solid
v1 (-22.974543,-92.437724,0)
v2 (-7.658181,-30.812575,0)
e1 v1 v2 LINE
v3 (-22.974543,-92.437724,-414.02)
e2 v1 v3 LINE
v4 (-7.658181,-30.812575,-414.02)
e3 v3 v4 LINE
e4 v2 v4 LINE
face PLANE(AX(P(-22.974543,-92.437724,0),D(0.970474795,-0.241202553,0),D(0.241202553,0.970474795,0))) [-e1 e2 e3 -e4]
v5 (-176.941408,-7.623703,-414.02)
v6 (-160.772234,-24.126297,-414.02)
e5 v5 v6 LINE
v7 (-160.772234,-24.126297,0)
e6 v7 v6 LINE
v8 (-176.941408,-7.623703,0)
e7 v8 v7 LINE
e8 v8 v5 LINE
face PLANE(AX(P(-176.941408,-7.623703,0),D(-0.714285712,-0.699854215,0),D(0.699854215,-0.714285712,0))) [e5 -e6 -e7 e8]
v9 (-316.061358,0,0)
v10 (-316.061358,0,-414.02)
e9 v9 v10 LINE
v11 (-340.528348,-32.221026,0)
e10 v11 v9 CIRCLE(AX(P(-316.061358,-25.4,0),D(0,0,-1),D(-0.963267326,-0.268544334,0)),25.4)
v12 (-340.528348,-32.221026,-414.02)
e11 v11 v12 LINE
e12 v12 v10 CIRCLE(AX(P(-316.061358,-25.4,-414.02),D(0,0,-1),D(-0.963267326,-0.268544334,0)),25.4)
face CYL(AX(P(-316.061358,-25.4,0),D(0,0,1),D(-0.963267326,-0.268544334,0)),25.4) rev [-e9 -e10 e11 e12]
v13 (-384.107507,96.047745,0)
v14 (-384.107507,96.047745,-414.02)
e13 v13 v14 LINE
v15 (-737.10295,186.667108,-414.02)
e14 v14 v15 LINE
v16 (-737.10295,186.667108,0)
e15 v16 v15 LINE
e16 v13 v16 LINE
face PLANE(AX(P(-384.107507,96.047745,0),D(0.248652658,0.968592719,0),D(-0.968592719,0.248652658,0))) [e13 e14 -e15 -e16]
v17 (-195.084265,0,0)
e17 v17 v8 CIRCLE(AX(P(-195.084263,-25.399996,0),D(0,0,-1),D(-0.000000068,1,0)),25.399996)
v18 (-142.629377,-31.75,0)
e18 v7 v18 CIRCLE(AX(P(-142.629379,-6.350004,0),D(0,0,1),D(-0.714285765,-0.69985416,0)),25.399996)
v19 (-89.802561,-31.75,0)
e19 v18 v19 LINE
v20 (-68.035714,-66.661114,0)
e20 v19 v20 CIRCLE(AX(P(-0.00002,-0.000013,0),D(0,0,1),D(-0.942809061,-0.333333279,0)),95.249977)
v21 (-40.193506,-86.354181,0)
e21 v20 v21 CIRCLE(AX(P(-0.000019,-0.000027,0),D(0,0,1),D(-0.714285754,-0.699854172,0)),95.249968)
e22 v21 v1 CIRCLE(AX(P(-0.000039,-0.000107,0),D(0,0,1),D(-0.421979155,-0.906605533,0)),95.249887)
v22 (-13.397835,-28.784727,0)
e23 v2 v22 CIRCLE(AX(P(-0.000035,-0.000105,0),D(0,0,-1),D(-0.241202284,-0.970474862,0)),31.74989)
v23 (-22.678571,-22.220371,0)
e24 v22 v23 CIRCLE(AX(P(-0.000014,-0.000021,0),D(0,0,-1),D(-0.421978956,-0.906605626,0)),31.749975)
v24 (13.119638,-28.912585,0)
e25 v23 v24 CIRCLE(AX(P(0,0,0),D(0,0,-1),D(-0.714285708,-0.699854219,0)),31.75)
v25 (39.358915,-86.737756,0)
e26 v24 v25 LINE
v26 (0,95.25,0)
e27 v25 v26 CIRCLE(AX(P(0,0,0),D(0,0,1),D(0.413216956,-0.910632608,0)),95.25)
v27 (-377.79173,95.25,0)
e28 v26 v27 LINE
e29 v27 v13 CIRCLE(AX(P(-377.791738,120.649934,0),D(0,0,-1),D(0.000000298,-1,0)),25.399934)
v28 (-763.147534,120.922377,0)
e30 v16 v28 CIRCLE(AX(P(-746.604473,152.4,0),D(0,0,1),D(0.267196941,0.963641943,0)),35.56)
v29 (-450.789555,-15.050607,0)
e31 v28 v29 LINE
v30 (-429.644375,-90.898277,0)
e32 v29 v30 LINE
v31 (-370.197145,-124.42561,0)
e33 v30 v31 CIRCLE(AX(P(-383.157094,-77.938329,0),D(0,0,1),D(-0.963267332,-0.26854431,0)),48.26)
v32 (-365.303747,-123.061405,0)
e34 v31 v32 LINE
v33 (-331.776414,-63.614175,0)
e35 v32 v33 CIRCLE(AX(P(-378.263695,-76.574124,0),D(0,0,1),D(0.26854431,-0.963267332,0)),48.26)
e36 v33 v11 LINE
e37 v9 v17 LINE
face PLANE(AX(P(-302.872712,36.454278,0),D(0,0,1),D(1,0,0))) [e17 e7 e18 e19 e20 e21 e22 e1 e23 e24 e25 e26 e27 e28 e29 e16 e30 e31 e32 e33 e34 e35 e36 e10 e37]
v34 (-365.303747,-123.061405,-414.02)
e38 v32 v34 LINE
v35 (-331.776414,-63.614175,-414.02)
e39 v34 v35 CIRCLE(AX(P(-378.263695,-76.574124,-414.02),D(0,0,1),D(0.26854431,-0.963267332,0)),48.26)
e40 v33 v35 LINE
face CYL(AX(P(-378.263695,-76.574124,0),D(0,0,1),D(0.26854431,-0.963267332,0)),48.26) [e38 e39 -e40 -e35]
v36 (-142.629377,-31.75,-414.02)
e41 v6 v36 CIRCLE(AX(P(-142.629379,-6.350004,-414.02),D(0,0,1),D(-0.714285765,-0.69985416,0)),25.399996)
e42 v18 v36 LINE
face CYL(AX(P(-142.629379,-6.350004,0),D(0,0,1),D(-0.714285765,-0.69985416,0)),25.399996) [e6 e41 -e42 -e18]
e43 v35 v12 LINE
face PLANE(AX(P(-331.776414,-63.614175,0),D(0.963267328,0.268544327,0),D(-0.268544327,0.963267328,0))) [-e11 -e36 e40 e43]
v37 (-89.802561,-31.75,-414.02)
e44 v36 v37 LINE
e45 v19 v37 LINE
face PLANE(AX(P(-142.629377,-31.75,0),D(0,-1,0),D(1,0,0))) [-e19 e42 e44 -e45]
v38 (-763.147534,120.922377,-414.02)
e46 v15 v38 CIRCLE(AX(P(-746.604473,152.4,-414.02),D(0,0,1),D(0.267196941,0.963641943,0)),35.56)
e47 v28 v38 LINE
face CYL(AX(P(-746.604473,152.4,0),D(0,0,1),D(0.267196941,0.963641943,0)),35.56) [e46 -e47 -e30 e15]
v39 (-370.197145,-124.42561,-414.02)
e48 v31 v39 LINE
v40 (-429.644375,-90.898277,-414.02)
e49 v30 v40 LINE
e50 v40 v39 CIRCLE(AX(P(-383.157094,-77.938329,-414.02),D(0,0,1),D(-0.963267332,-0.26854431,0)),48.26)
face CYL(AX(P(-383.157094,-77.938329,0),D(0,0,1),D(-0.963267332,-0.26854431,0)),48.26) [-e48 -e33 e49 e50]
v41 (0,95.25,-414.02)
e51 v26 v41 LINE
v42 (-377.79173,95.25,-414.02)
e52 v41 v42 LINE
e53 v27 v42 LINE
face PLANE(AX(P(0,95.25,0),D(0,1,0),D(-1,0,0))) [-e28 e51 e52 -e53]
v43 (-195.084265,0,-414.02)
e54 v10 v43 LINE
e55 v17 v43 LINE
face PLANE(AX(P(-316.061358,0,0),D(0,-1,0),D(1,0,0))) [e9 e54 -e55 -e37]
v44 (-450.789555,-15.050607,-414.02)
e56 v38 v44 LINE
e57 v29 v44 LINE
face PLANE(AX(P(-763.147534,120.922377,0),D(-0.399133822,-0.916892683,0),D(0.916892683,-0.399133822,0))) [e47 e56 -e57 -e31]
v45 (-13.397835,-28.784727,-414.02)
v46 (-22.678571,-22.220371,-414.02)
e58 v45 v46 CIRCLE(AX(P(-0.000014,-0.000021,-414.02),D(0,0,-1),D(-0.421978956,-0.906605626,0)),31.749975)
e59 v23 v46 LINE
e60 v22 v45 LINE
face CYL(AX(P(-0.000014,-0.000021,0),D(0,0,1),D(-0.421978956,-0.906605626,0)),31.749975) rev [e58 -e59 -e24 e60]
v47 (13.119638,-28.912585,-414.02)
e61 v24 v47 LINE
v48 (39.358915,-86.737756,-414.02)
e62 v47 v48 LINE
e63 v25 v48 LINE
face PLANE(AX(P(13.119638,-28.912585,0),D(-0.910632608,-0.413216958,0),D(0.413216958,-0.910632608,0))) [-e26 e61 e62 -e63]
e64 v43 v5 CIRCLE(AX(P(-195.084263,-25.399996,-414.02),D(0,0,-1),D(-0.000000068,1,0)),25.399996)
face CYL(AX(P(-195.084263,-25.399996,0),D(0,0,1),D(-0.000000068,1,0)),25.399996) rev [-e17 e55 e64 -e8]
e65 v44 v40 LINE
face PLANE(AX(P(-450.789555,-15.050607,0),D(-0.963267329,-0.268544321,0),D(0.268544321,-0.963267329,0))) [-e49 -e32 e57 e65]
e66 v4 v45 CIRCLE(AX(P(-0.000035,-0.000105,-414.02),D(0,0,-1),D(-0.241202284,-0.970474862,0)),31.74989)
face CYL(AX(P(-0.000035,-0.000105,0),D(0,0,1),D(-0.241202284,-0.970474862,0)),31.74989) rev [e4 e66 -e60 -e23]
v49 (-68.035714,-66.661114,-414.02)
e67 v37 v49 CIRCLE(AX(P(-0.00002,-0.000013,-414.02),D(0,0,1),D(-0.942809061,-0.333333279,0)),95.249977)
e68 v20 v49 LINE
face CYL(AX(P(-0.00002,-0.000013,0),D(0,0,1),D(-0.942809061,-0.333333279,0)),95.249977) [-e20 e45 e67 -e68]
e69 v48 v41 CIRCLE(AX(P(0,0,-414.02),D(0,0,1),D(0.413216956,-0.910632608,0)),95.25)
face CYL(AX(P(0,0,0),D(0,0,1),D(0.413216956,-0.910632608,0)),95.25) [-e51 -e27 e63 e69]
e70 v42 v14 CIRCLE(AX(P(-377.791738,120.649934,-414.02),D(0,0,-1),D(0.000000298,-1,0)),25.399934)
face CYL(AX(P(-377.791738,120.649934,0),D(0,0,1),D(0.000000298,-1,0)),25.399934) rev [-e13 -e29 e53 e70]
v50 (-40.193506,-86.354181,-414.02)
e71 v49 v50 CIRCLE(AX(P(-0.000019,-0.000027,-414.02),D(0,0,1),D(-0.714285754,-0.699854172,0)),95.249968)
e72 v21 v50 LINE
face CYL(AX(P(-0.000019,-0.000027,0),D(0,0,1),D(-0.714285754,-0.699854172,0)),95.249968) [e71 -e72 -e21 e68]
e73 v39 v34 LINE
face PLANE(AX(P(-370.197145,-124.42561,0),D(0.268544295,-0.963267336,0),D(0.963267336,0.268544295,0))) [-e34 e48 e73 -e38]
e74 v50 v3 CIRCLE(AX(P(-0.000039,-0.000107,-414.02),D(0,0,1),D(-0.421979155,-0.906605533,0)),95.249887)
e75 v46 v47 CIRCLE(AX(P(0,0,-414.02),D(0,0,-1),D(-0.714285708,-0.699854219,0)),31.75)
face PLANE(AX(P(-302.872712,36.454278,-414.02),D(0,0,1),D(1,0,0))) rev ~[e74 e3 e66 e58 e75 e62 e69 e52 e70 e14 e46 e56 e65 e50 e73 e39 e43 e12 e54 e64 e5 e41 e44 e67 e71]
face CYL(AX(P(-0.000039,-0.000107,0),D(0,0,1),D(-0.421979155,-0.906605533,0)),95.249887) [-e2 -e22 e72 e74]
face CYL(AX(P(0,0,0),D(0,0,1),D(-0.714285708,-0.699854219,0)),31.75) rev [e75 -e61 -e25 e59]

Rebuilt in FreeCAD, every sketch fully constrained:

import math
import FreeCAD as App
import Part
import Sketcher
from FreeCAD import Vector
Q = App.Units.Quantity

doc = App.newDocument("Part")
body = doc.addObject("PartDesign::Body", "Body")

# Sketch on XY plane
sketch1 = body.newObject("Sketcher::SketchObject", "Sketch")
sketch1.AttachmentSupport = (doc.getObject("XY_Plane"), [""])
sketch1.MapMode = "FlatFace"
sketch1.addGeometry([
    Part.ArcOfCircle(Part.Circle(Vector(0, 0, 0), Vector(0, 0, 1), 31.75), math.radians(-65.592921), math.radians(224.415309)),  # 0
    Part.LineSegment(Vector(13.119638, -28.912585, 0), Vector(39.358915, -86.737756, 0)),  # 1
    Part.ArcOfCircle(Part.Circle(Vector(0, 0, 0), Vector(0, 0, 1), 95.25), math.radians(-65.59292), math.radians(90)),  # 2
    Part.LineSegment(Vector(0, 95.25, 0), Vector(-377.79173, 95.25, 0)),  # 3
    Part.ArcOfCircle(Part.Circle(Vector(-377.791738, 120.649934, 0), Vector(0, 0, 1), 25.399934), math.radians(-104.397817), math.radians(-89.999983)),  # 4
    Part.LineSegment(Vector(-384.107507, 96.047745, 0), Vector(-737.10295, 186.667108, 0)),  # 5
    Part.ArcOfCircle(Part.Circle(Vector(-746.604473, 152.4, 0), Vector(0, 0, 1), 35.56), math.radians(74.502464), math.radians(242.275835)),  # 6
    Part.LineSegment(Vector(-763.147534, 120.922377, 0), Vector(-450.789555, -15.050607, 0)),  # 7
    Part.LineSegment(Vector(-450.789555, -15.050607, 0), Vector(-429.644375, -90.898277, 0)),  # 8
    Part.ArcOfCircle(Part.Circle(Vector(-383.157094, -77.938329, 0), Vector(0, 0, 1), 48.26), math.radians(-164.422337), math.radians(-74.422337)),  # 9
    Part.LineSegment(Vector(-370.197145, -124.42561, 0), Vector(-365.303747, -123.061405, 0)),  # 10
    Part.ArcOfCircle(Part.Circle(Vector(-378.263695, -76.574124, 0), Vector(0, 0, 1), 48.26), math.radians(-74.422337), math.radians(15.577663)),  # 11
    Part.LineSegment(Vector(-331.776414, -63.614175, 0), Vector(-340.528348, -32.221026, 0)),  # 12
    Part.ArcOfCircle(Part.Circle(Vector(-316.061358, -25.4, 0), Vector(0, 0, 1), 25.4), math.radians(90), math.radians(195.577665)),  # 13
    Part.LineSegment(Vector(-316.061358, 0, 0), Vector(-195.084265, 0, 0)),  # 14
    Part.ArcOfCircle(Part.Circle(Vector(-195.084263, -25.399996, 0), Vector(0, 0, 1), 25.399996), math.radians(44.415304), math.radians(90.000004)),  # 15
    Part.LineSegment(Vector(-176.941408, -7.623703, 0), Vector(-160.772234, -24.126297, 0)),  # 16
    Part.ArcOfCircle(Part.Circle(Vector(-142.629379, -6.350004, 0), Vector(0, 0, 1), 25.399996), math.radians(-135.584696), math.radians(-89.999996)),  # 17
    Part.LineSegment(Vector(-142.629377, -31.75, 0), Vector(-89.802561, -31.75, 0)),  # 18
    Part.ArcOfCircle(Part.Circle(Vector(-0.00002, -0.000013, 0), Vector(0, 0, 1), 95.249977), math.radians(-160.528783), math.radians(-135.584688)),  # 19
    Part.ArcOfCircle(Part.Circle(Vector(-0.000019, -0.000027, 0), Vector(0, 0, 1), 95.249968), math.radians(-135.584695), math.radians(-114.959594)),  # 20
    Part.ArcOfCircle(Part.Circle(Vector(-0.000039, -0.000107, 0), Vector(0, 0, 1), 95.249887), math.radians(-114.959603), math.radians(-103.957519)),  # 21
    Part.LineSegment(Vector(-22.974543, -92.437724, 0), Vector(-7.658181, -30.812575, 0)),  # 22
    Part.ArcOfCircle(Part.Circle(Vector(-0.000035, -0.000105, 0), Vector(0, 0, 1), 31.74989), math.radians(-114.959619), math.radians(-103.957511)),  # 23
    Part.ArcOfCircle(Part.Circle(Vector(-0.000014, -0.000021, 0), Vector(0, 0, 1), 31.749975), math.radians(-135.584701), math.radians(-114.95959)),  # 24
], False)
sketch1.addConstraint([
    Sketcher.Constraint("Coincident", 0, 1, 1, 1),
    Sketcher.Constraint("Coincident", 1, 2, 2, 1),
    Sketcher.Constraint("Coincident", 2, 2, 3, 1),
    Sketcher.Constraint("Coincident", 3, 2, 4, 2),
    Sketcher.Constraint("Coincident", 4, 1, 5, 1),
    Sketcher.Constraint("Coincident", 5, 2, 6, 1),
    Sketcher.Constraint("Coincident", 6, 2, 7, 1),
    Sketcher.Constraint("Coincident", 7, 2, 8, 1),
    Sketcher.Constraint("Coincident", 8, 2, 9, 1),
    Sketcher.Constraint("Coincident", 9, 2, 10, 1),
    Sketcher.Constraint("Coincident", 10, 2, 11, 1),
    Sketcher.Constraint("Coincident", 11, 2, 12, 1),
    Sketcher.Constraint("Coincident", 12, 2, 13, 2),
    Sketcher.Constraint("Coincident", 13, 1, 14, 1),
    Sketcher.Constraint("Coincident", 14, 2, 15, 2),
    Sketcher.Constraint("Coincident", 15, 1, 16, 1),
    Sketcher.Constraint("Coincident", 16, 2, 17, 1),
    Sketcher.Constraint("Coincident", 17, 2, 18, 1),
    Sketcher.Constraint("Coincident", 18, 2, 19, 1),
    Sketcher.Constraint("Coincident", 19, 2, 20, 1),
    Sketcher.Constraint("Coincident", 20, 2, 21, 1),
    Sketcher.Constraint("Coincident", 21, 2, 22, 1),
    Sketcher.Constraint("Coincident", 22, 2, 23, 2),
    Sketcher.Constraint("Coincident", 23, 1, 24, 2),
    Sketcher.Constraint("Coincident", 24, 1, 0, 2),
    Sketcher.Constraint("Horizontal", 3),
    Sketcher.Constraint("Horizontal", 14),
    Sketcher.Constraint("Horizontal", 18),
    Sketcher.Constraint("Coincident", 0, 3, -1, 1),
    Sketcher.Constraint("Coincident", 2, 3, -1, 1),
    Sketcher.Constraint("Coincident", 23, 3, 21, 3),
    Sketcher.Constraint("Coincident", 24, 3, 20, 3),
    Sketcher.Constraint("PointOnObject", 2, 2, -2),
    Sketcher.Constraint("PointOnObject", 13, 1, -1),
    Sketcher.Constraint("Radius", 13, Q("1 in")),
    Sketcher.Constraint("Radius", 15, Q("0.9999998 in")),
    Sketcher.Constraint("Radius", 17, Q("0.9999998 in")),
    Sketcher.Constraint("Radius", 6, Q("1.4 in")),
    Sketcher.Constraint("Radius", 9, Q("1.9 in")),
    Sketcher.Constraint("Radius", 11, Q("1.9 in")),
    Sketcher.Constraint("Radius", 0, Q("1.25 in")),
    Sketcher.Constraint("Radius", 2, Q("3.75 in")),
    Sketcher.Constraint("DistanceY", -1, 1, 6, 3, Q("6 in")),
    Sketcher.Constraint("Distance", 8, Q("3.1 in")),
    Sketcher.Constraint("Distance", 10, Q("0.2 in")),
    Sketcher.Constraint("Distance", 22, Q("2.5 in")),
    Sketcher.Constraint("DistanceY", 17, 3, -1, 1, Q("0.2500002 in")),
    Sketcher.Constraint("Radius", 20, Q("95.249968 mm")),
    Sketcher.Constraint("Radius", 23, Q("31.74989 mm")),
    Sketcher.Constraint("Radius", 4, Q("25.399934 mm")),
    Sketcher.Constraint("Radius", 19, Q("95.249977 mm")),
    Sketcher.Constraint("DistanceX", 3, 2, 3, 1, Q("377.79173 mm")),
    Sketcher.Constraint("DistanceX", 9, 3, 11, 3, Q("4.893398 mm")),
    Sketcher.Constraint("DistanceX", 9, 2, 10, 2, Q("4.893398 mm")),
    Sketcher.Constraint("DistanceX", 10, 2, 12, 2, Q("24.775399 mm")),
    Sketcher.Constraint("DistanceY", 15, 1, 17, 3, Q("1.273699 mm")),
    Sketcher.Constraint("DistanceY", 15, 3, 16, 2, Q("1.273699 mm")),
    Sketcher.Constraint("DistanceX", 23, 1, 23, 3, Q("13.3978 mm")),
    Sketcher.Constraint("DistanceY", 23, 1, 20, 3, Q("28.7847 mm")),
    Sketcher.Constraint("Distance", 5, Q("364.441561 mm")),
    Sketcher.Constraint("Distance", 16, Q("23.103632 mm")),
    Sketcher.Constraint("DistanceX", 14, 1, 14, 2, Q("120.977093 mm")),
    Sketcher.Constraint("DistanceX", 18, 1, 18, 2, Q("52.826816 mm")),
    Sketcher.Constraint("DistanceY", 9, 3, -1, 1, Q("77.938329 mm")),
    Sketcher.Constraint("DistanceX", 17, 3, -1, 1, Q("142.629379 mm")),
    Sketcher.Constraint("DistanceX", 5, 2, -1, 1, Q("737.10295 mm")),
    Sketcher.Constraint("DistanceY", -1, 1, 5, 2, Q("186.667108 mm")),
    Sketcher.Constraint("DistanceY", 9, 2, -1, 1, Q("124.42561 mm")),
    Sketcher.Constraint("DistanceX", 12, 2, -1, 1, Q("340.528348 mm")),
    Sketcher.Constraint("DistanceX", 13, 1, -1, 1, Q("316.061358 mm")),
    Sketcher.Constraint("DistanceX", 18, 2, -1, 1, Q("89.802561 mm")),
    Sketcher.Constraint("DistanceY", 20, 2, -1, 1, Q("86.354181 mm")),
    Sketcher.Constraint("DistanceX", 22, 2, -1, 1, Q("7.658181 mm")),
    Sketcher.Constraint("DistanceX", 24, 1, -1, 1, Q("22.678571 mm")),
    Sketcher.Constraint("DistanceX", 4, 3, 13, 3, Q("61.73038 mm")),
    Sketcher.Constraint("DistanceX", 13, 3, 0, 3, Q("316.061358 mm")),
    Sketcher.Constraint("DistanceX", 17, 3, 20, 3, Q("142.62936 mm")),
    Sketcher.Constraint("DistanceY", 0, 1, 23, 3, Q("28.91248 mm")),
    Sketcher.Constraint("DistanceY", 1, 2, 0, 1, Q("57.825171 mm")),
    Sketcher.Constraint("DistanceX", 6, 2, 6, 3, Q("16.543061 mm")),
    Sketcher.Constraint("DistanceX", 7, 2, 9, 3, Q("67.632461 mm")),
    Sketcher.Constraint("DistanceY", 9, 3, 7, 2, Q("62.887722 mm")),
    Sketcher.Constraint("DistanceX", 11, 3, 11, 2, Q("46.487281 mm")),
    Sketcher.Constraint("DistanceX", 19, 2, 0, 1, Q("81.155352 mm")),
    Sketcher.Constraint("DistanceX", 19, 2, 21, 2, Q("45.061171 mm")),
])
pad1 = body.newObject("PartDesign::Pad", "Pad")
pad1.Profile = sketch1
pad1.Length = Q("16.3 in")
pad1.Reversed = True

doc.recompute()
